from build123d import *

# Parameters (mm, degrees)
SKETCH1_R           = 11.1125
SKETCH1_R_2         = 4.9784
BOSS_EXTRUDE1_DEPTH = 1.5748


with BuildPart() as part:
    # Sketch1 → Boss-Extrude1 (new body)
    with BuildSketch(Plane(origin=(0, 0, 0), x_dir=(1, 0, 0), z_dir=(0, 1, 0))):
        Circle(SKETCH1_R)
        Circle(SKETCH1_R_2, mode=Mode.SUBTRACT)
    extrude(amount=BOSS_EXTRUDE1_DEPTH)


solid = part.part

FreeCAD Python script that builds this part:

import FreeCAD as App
import Part
import Sketcher
Q = App.Units.Quantity

doc = App.newDocument("Part")
body = doc.addObject("PartDesign::Body", "Body")

sketch1 = body.newObject("Sketcher::SketchObject", "Sketch")
sketch1.AttachmentSupport = (doc.getObject("XZ_Plane"), [""])
sketch1.MapMode = "FlatFace"
sketch1.addGeometry(Part.Circle(App.Vector(0, 0, 0), App.Vector(0, 0, 1), 11.1125), False)
sketch1.addGeometry(Part.Circle(App.Vector(0, 0, 0), App.Vector(0, 0, 1), 4.9784), False)
sketch1.addConstraint(Sketcher.Constraint("Coincident", 0, 3, -1, 1))
sketch1.addConstraint(Sketcher.Constraint("Coincident", 1, 3, -1, 1))
sketch1.addConstraint(Sketcher.Constraint("Diameter", 0, Q("0.875 in")))
sketch1.addConstraint(Sketcher.Constraint("Diameter", 1, Q("0.392 in")))
pad1 = body.newObject("PartDesign::Pad", "Pad")
pad1.Profile = sketch1
pad1.Length = Q("0.062 in")
pad1.Reversed = True

doc.recompute()
